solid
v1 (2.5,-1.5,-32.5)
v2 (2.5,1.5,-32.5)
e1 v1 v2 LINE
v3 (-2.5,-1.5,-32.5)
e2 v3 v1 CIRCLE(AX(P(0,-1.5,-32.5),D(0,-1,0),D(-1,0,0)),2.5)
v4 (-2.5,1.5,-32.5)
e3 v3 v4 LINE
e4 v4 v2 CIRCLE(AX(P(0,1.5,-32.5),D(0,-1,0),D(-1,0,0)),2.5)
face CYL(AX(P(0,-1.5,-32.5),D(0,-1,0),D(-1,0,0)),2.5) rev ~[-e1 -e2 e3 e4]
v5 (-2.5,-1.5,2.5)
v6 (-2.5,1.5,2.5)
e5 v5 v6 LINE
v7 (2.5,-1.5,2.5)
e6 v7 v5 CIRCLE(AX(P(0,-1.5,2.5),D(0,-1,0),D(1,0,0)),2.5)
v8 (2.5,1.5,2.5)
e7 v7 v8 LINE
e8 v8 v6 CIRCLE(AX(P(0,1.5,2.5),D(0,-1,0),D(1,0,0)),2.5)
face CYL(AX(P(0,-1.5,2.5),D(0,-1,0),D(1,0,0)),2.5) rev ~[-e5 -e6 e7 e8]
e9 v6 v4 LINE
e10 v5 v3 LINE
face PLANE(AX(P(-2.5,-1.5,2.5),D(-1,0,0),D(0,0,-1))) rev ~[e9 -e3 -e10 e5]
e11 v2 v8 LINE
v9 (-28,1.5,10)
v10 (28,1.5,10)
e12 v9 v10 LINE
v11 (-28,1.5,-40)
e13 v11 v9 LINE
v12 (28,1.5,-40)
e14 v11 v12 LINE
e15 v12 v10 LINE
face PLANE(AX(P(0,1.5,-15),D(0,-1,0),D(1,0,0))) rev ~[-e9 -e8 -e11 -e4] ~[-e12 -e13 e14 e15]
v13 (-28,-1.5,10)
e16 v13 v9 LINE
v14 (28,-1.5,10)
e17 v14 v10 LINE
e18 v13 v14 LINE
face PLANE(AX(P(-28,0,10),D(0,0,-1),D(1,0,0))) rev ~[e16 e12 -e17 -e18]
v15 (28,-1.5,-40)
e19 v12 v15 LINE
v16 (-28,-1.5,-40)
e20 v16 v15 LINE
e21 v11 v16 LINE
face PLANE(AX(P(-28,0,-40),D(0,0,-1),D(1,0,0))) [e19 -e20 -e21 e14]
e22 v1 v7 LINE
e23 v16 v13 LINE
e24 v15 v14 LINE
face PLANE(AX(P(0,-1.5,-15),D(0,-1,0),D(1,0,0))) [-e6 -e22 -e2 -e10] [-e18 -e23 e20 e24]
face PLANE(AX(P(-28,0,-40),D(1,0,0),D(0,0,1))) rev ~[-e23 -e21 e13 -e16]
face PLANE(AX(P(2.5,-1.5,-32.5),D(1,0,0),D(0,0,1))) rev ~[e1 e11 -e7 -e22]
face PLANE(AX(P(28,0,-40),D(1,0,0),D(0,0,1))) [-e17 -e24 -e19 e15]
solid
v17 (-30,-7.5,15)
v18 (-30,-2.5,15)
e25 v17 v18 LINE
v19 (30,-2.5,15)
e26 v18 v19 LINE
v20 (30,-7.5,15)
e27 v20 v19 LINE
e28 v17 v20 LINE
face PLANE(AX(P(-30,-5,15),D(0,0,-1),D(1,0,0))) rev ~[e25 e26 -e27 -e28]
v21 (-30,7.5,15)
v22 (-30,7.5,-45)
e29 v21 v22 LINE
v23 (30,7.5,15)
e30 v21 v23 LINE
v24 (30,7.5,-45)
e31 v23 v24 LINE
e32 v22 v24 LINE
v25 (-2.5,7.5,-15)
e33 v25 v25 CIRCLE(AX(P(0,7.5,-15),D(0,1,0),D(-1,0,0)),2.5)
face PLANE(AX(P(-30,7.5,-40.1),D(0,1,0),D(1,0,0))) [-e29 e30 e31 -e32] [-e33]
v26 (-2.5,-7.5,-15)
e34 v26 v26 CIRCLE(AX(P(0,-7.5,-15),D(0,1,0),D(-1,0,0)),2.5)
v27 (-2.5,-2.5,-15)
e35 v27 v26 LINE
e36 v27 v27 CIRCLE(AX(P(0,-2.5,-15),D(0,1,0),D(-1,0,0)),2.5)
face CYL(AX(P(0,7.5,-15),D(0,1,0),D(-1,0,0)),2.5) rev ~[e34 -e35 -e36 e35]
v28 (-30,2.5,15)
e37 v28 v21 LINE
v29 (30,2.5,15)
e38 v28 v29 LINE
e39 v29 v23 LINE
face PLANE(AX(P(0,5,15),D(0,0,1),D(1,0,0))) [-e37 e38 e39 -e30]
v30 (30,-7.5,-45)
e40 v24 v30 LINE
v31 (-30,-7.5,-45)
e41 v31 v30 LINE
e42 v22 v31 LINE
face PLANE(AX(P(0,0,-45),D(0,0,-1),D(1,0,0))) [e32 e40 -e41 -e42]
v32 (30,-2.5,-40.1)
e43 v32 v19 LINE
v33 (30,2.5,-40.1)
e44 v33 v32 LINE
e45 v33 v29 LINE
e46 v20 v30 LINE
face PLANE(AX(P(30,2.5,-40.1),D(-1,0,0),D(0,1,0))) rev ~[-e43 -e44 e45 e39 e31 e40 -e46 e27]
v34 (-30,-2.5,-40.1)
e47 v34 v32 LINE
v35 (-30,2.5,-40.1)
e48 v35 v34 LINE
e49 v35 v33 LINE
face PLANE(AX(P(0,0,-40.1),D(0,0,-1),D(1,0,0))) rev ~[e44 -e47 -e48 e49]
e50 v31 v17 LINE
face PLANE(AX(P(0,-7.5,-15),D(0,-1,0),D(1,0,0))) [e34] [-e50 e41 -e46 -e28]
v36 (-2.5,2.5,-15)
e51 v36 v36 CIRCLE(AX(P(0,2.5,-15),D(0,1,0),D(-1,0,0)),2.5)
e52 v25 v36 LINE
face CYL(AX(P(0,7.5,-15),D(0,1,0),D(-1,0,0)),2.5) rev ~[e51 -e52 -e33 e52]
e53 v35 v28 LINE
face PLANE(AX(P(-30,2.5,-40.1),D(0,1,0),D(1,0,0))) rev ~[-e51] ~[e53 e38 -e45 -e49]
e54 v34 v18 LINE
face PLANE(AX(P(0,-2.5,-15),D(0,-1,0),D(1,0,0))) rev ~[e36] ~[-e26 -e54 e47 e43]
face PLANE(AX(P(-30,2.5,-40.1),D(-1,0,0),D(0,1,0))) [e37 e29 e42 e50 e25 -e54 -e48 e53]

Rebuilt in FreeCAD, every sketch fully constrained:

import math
import FreeCAD as App
import Part
import Sketcher

doc = App.newDocument("Part")
body = doc.addObject("PartDesign::Body", "Body")

# Sketch on XZ plane
sketch1 = body.newObject("Sketcher::SketchObject", "Sketch")
sketch1.AttachmentSupport = (doc.getObject("XZ_Plane"), [""])
sketch1.MapMode = "FlatFace"
sketch1.addGeometry([
    Part.LineSegment(App.Vector(-28, 10, 0), App.Vector(-28, -40, 0)),
    Part.LineSegment(App.Vector(-28, -40, 0), App.Vector(28, -40, 0)),
    Part.LineSegment(App.Vector(28, -40, 0), App.Vector(28, 10, 0)),
    Part.LineSegment(App.Vector(28, 10, 0), App.Vector(-28, 10, 0)),
], False)
sketch1.addConstraint([
    Sketcher.Constraint("Coincident", 0, 2, 1, 1),
    Sketcher.Constraint("Coincident", 1, 2, 2, 1),
    Sketcher.Constraint("Coincident", 2, 2, 3, 1),
    Sketcher.Constraint("Coincident", 3, 2, 0, 1),
    Sketcher.Constraint("Vertical", 0),
    Sketcher.Constraint("Horizontal", 1),
    Sketcher.Constraint("Vertical", 2),
    Sketcher.Constraint("Horizontal", 3),
    Sketcher.Constraint("DistanceX", 1, 1, 1, 2, 56.0),
    Sketcher.Constraint("DistanceY", 0, 2, 0, 1, 50.0),
    Sketcher.Constraint("DistanceX", 0, 2, -1, 1, 28.0),
    Sketcher.Constraint("DistanceY", 0, 2, -1, 1, 40.0),
])
pad1 = body.newObject("PartDesign::Pad", "Pad")
pad1.Profile = sketch1
pad1.Length = 3
pad1.Midplane = True

# Sketch on XZ plane
sketch2 = body.newObject("Sketcher::SketchObject", "Sketch001")
sketch2.AttachmentSupport = (doc.getObject("XZ_Plane"), [""])
sketch2.MapMode = "FlatFace"
sketch2.AttachmentOffset = App.Placement(App.Vector(0, 0, 1.5), App.Rotation())
sketch2.addGeometry([
    Part.ArcOfCircle(Part.Circle(App.Vector(0, 2.5, 0), App.Vector(0, 0, 1), 2.5), math.radians(0), math.radians(180)),
    Part.LineSegment(App.Vector(-2.5, 2.5, 0), App.Vector(-2.5, -32.5, 0)),
    Part.ArcOfCircle(Part.Circle(App.Vector(0, -32.5, 0), App.Vector(0, 0, 1), 2.5), math.radians(180), math.radians(360)),
    Part.LineSegment(App.Vector(2.5, -32.5, 0), App.Vector(2.5, 2.5, 0)),
], False)
sketch2.addConstraint([
    Sketcher.Constraint("Tangent", 0, 2, 1, 1),
    Sketcher.Constraint("Tangent", 1, 2, 2, 1),
    Sketcher.Constraint("Tangent", 2, 2, 3, 1),
    Sketcher.Constraint("Tangent", 3, 2, 0, 1),
    Sketcher.Constraint("Vertical", 1),
    Sketcher.Constraint("Vertical", 3),
    Sketcher.Constraint("PointOnObject", 0, 3, -2),
    Sketcher.Constraint("Radius", 0, 2.5),
    Sketcher.Constraint("DistanceY", 1, 2, 1, 1, 35.0),
    Sketcher.Constraint("DistanceY", -1, 1, 0, 3, 2.5),
])
pocket1 = body.newObject("PartDesign::Pocket", "Pocket")
pocket1.Profile = sketch2
pocket1.Length = 25
body2 = doc.addObject("PartDesign::Body", "Body001")

# Sketch on XZ plane
sketch3 = body2.newObject("Sketcher::SketchObject", "Sketch002")
sketch3.AttachmentSupport = (doc.getObject("XZ_Plane001"), [""])
sketch3.MapMode = "FlatFace"
sketch3.AttachmentOffset = App.Placement(App.Vector(0, 0, 5), App.Rotation())
sketch3.addGeometry([
    Part.LineSegment(App.Vector(-30, 15, 0), App.Vector(-30, -45, 0)),
    Part.LineSegment(App.Vector(-30, -45, 0), App.Vector(30, -45, 0)),
    Part.LineSegment(App.Vector(30, -45, 0), App.Vector(30, 15, 0)),
    Part.LineSegment(App.Vector(30, 15, 0), App.Vector(-30, 15, 0)),
], False)
sketch3.addConstraint([
    Sketcher.Constraint("Coincident", 0, 2, 1, 1),
    Sketcher.Constraint("Coincident", 1, 2, 2, 1),
    Sketcher.Constraint("Coincident", 2, 2, 3, 1),
    Sketcher.Constraint("Coincident", 3, 2, 0, 1),
    Sketcher.Constraint("Vertical", 0),
    Sketcher.Constraint("Horizontal", 1),
    Sketcher.Constraint("Vertical", 2),
    Sketcher.Constraint("Horizontal", 3),
    Sketcher.Constraint("Equal", 3, 0),
    Sketcher.Constraint("DistanceX", 1, 1, 1, 2, 60.0),
    Sketcher.Constraint("DistanceX", 0, 2, -1, 1, 30.0),
    Sketcher.Constraint("DistanceY", 0, 2, -1, 1, 45.0),
])
pad2 = body2.newObject("PartDesign::Pad", "Pad001")
pad2.Profile = sketch3
pad2.Length = 5
pad2.Midplane = True

# Sketch on XY plane
sketch4 = body2.newObject("Sketcher::SketchObject", "Sketch003")
sketch4.AttachmentSupport = (doc.getObject("XY_Plane001"), [""])
sketch4.MapMode = "FlatFace"
sketch4.AttachmentOffset = App.Placement(App.Vector(0, 0, -45), App.Rotation())
sketch4.addGeometry([
    Part.LineSegment(App.Vector(-30, -8, 0), App.Vector(-30, 8, 0)),
    Part.LineSegment(App.Vector(-30, 8, 0), App.Vector(30, 8, 0)),
    Part.LineSegment(App.Vector(30, 8, 0), App.Vector(30, -8, 0)),
    Part.LineSegment(App.Vector(30, -8, 0), App.Vector(-30, -8, 0)),
], False)
sketch4.addConstraint([
    Sketcher.Constraint("Coincident", 0, 2, 1, 1),
    Sketcher.Constraint("Coincident", 1, 2, 2, 1),
    Sketcher.Constraint("Coincident", 2, 2, 3, 1),
    Sketcher.Constraint("Coincident", 3, 2, 0, 1),
    Sketcher.Constraint("Vertical", 0),
    Sketcher.Constraint("Horizontal", 1),
    Sketcher.Constraint("Vertical", 2),
    Sketcher.Constraint("Horizontal", 3),
    Sketcher.Constraint("Symmetric", 0, 2, 2, 2, -1, 1),
    Sketcher.Constraint("DistanceX", 1, 1, 1, 2, 60.0),
    Sketcher.Constraint("DistanceY", 0, 1, 0, 2, 15.0),
])
pad3 = body2.newObject("PartDesign::Pad", "Pad002")
pad3.Profile = sketch4
pad3.Length = 4.9

# Sketch on XY plane
sketch5 = body2.newObject("Sketcher::SketchObject", "Sketch004")
sketch5.AttachmentSupport = (doc.getObject("XY_Plane001"), [""])
sketch5.MapMode = "FlatFace"
sketch5.AttachmentOffset = App.Placement(App.Vector(0, 0, -40.1), App.Rotation())
sketch5.addGeometry([
    Part.LineSegment(App.Vector(-30, 8, 0), App.Vector(-30, 2, 0)),
    Part.LineSegment(App.Vector(-30, 2, 0), App.Vector(30, 2, 0)),
    Part.LineSegment(App.Vector(30, 2, 0), App.Vector(30, 8, 0)),
    Part.LineSegment(App.Vector(30, 8, 0), App.Vector(-30, 8, 0)),
], False)
sketch5.addConstraint([
    Sketcher.Constraint("Coincident", 0, 2, 1, 1),
    Sketcher.Constraint("Coincident", 1, 2, 2, 1),
    Sketcher.Constraint("Coincident", 2, 2, 3, 1),
    Sketcher.Constraint("Coincident", 3, 2, 0, 1),
    Sketcher.Constraint("Vertical", 0),
    Sketcher.Constraint("Horizontal", 1),
    Sketcher.Constraint("Vertical", 2),
    Sketcher.Constraint("Horizontal", 3),
    Sketcher.Constraint("DistanceX", 1, 1, 1, 2, 60.0),
    Sketcher.Constraint("DistanceY", 0, 2, 0, 1, 5.0),
    Sketcher.Constraint("DistanceX", 0, 2, -1, 1, 30.0),
    Sketcher.Constraint("DistanceY", -1, 1, 0, 2, 2.5),
])
pad4 = body2.newObject("PartDesign::Pad", "Pad003")
pad4.Profile = sketch5
pad4.Length = 55.1

# Sketch on XZ plane
sketch6 = body2.newObject("Sketcher::SketchObject", "Sketch005")
sketch6.AttachmentSupport = (doc.getObject("XZ_Plane001"), [""])
sketch6.MapMode = "FlatFace"
sketch6.AttachmentOffset = App.Placement(App.Vector(0, 0, -7.5), App.Rotation())
sketch6.addGeometry(Part.Circle(App.Vector(0, -15, 0), App.Vector(0, 0, 1), 2.5), False)
sketch6.addConstraint([
    Sketcher.Constraint("PointOnObject", 0, 3, -2),
    Sketcher.Constraint("Diameter", 0, 5.0),
    Sketcher.Constraint("DistanceY", 0, 3, -1, 1, 15.0),
])
pocket2 = body2.newObject("PartDesign::Pocket", "Pocket001")
pocket2.Profile = sketch6
pocket2.Length = 25
pocket2.Reversed = True

doc.recompute()
